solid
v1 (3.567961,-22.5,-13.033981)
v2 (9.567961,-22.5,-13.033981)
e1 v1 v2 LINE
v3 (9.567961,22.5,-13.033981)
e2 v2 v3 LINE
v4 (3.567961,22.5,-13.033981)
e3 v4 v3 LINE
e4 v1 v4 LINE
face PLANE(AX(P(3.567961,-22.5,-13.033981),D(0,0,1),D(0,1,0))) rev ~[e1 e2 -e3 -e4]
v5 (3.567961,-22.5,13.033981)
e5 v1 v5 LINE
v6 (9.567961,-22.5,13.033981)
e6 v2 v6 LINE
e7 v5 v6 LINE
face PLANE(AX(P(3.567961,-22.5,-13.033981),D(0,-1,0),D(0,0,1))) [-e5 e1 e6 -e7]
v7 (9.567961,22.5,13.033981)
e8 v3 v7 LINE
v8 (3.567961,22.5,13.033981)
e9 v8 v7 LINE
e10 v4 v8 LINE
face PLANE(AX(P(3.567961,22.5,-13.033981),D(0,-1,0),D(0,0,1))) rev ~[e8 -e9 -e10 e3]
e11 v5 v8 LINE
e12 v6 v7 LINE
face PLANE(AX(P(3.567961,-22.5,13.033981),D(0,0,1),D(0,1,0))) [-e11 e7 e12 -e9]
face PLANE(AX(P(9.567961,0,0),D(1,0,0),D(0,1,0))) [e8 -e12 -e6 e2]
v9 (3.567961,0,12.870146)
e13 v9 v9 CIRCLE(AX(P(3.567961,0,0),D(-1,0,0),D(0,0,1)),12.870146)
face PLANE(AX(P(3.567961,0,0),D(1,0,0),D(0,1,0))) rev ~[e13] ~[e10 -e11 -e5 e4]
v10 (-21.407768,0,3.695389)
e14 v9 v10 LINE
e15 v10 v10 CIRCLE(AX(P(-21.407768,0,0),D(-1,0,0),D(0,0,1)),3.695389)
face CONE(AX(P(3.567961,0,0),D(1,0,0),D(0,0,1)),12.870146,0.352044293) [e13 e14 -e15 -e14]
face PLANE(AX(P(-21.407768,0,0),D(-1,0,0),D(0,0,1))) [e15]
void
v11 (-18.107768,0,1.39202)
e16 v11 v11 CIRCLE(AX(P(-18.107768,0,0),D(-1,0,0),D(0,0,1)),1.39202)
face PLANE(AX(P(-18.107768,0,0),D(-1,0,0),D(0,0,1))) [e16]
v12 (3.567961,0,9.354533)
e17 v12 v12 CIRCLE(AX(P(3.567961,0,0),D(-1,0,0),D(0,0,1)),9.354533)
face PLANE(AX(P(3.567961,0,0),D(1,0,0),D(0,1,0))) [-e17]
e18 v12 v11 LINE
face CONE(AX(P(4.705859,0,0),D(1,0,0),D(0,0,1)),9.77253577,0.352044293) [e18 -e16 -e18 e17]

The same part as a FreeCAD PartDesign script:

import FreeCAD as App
import Part
import Sketcher

V = App.Vector
Q = App.Units.Quantity


def faces_at(feature, points):
    """Names of the faces that lie closest to the given points."""
    faces = feature.Shape.Faces
    near = lambda p: min(range(len(faces)), key=lambda i: faces[i].distToShape(Part.Vertex(*p))[0])
    return sorted({f"Face{near(p) + 1}" for p in points})

doc = App.newDocument("Part")
body = doc.addObject("PartDesign::Body", "Body")

# Sketch on XZ plane
sketch1 = doc.addObject("Sketcher::SketchObject", "Sketch")
body.addObject(sketch1)
sketch1.AttachmentSupport = (doc.XZ_Plane, [""])
sketch1.MapMode = "FlatFace"
sketch1.addGeometry(Part.LineSegment(V(-21.4, 3.7, 0), V(-21.4, 0, 0)), False)
sketch1.addGeometry(Part.LineSegment(V(-21.4, 0, 0), V(3.6, 0, 0)), False)
sketch1.addGeometry(Part.LineSegment(V(3.6, 0, 0), V(3.6, 12.9, 0)), False)
sketch1.addGeometry(Part.LineSegment(V(3.6, 12.9, 0), V(-21.4, 3.7, 0)), False)
sketch1.addConstraint(Sketcher.Constraint("Coincident", 0, 2, 1, 1))
sketch1.addConstraint(Sketcher.Constraint("Coincident", 1, 2, 2, 1))
sketch1.addConstraint(Sketcher.Constraint("Coincident", 2, 2, 3, 1))
sketch1.addConstraint(Sketcher.Constraint("Coincident", 3, 2, 0, 1))
sketch1.addConstraint(Sketcher.Constraint("Vertical", 0))
sketch1.addConstraint(Sketcher.Constraint("Horizontal", 1))
sketch1.addConstraint(Sketcher.Constraint("Vertical", 2))
sketch1.addConstraint(Sketcher.Constraint("PointOnObject", 0, 2, -1))
sketch1.addConstraint(Sketcher.Constraint("DistanceX", 1, 1, 1, 2, Q("24.975729 mm")))
sketch1.addConstraint(Sketcher.Constraint("DistanceY", 0, 2, 0, 1, Q("3.695389 mm")))
sketch1.addConstraint(Sketcher.Constraint("DistanceY", 2, 1, 2, 2, Q("12.870146 mm")))
sketch1.addConstraint(Sketcher.Constraint("DistanceX", 0, 2, -1, 1, Q("21.407768 mm")))
revolution = doc.addObject("PartDesign::Revolution", "Revolution")
body.addObject(revolution)
revolution.Profile = sketch1
revolution.ReferenceAxis = (sketch1, ["H_Axis"])
revolution.Angle = 360
doc.recompute()

thickness = doc.addObject("PartDesign::Thickness", "Thickness")
body.addObject(thickness)
thickness.Base = (revolution, faces_at(revolution, [(3.568, 0, 0)]))
thickness.Value = 3.3
thickness.Reversed = True
thickness.Join = "Arc"

# Sketch on YZ plane
sketch2 = doc.addObject("Sketcher::SketchObject", "Sketch001")
body.addObject(sketch2)
sketch2.AttachmentSupport = (doc.YZ_Plane, [""])
sketch2.MapMode = "FlatFace"
sketch2.AttachmentOffset = App.Placement(V(0, 0, 3.567961), App.Rotation())
sketch2.addGeometry(Part.LineSegment(V(-22, 13, 0), V(-22, -13, 0)), False)
sketch2.addGeometry(Part.LineSegment(V(-22, -13, 0), V(22, -13, 0)), False)
sketch2.addGeometry(Part.LineSegment(V(22, -13, 0), V(22, 13, 0)), False)
sketch2.addGeometry(Part.LineSegment(V(22, 13, 0), V(-22, 13, 0)), False)
sketch2.addConstraint(Sketcher.Constraint("Coincident", 0, 2, 1, 1))
sketch2.addConstraint(Sketcher.Constraint("Coincident", 1, 2, 2, 1))
sketch2.addConstraint(Sketcher.Constraint("Coincident", 2, 2, 3, 1))
sketch2.addConstraint(Sketcher.Constraint("Coincident", 3, 2, 0, 1))
sketch2.addConstraint(Sketcher.Constraint("Vertical", 0))
sketch2.addConstraint(Sketcher.Constraint("Horizontal", 1))
sketch2.addConstraint(Sketcher.Constraint("Vertical", 2))
sketch2.addConstraint(Sketcher.Constraint("Horizontal", 3))
sketch2.addConstraint(Sketcher.Constraint("Symmetric", 0, 2, 2, 2, -1, 1))
sketch2.addConstraint(Sketcher.Constraint("DistanceX", 1, 1, 1, 2, Q("45 mm")))
sketch2.addConstraint(Sketcher.Constraint("DistanceY", 0, 2, 0, 1, Q("26.067962 mm")))
pad1 = doc.addObject("PartDesign::Pad", "Pad")
body.addObject(pad1)
pad1.Profile = sketch2
pad1.Length = 6

doc.recompute()
